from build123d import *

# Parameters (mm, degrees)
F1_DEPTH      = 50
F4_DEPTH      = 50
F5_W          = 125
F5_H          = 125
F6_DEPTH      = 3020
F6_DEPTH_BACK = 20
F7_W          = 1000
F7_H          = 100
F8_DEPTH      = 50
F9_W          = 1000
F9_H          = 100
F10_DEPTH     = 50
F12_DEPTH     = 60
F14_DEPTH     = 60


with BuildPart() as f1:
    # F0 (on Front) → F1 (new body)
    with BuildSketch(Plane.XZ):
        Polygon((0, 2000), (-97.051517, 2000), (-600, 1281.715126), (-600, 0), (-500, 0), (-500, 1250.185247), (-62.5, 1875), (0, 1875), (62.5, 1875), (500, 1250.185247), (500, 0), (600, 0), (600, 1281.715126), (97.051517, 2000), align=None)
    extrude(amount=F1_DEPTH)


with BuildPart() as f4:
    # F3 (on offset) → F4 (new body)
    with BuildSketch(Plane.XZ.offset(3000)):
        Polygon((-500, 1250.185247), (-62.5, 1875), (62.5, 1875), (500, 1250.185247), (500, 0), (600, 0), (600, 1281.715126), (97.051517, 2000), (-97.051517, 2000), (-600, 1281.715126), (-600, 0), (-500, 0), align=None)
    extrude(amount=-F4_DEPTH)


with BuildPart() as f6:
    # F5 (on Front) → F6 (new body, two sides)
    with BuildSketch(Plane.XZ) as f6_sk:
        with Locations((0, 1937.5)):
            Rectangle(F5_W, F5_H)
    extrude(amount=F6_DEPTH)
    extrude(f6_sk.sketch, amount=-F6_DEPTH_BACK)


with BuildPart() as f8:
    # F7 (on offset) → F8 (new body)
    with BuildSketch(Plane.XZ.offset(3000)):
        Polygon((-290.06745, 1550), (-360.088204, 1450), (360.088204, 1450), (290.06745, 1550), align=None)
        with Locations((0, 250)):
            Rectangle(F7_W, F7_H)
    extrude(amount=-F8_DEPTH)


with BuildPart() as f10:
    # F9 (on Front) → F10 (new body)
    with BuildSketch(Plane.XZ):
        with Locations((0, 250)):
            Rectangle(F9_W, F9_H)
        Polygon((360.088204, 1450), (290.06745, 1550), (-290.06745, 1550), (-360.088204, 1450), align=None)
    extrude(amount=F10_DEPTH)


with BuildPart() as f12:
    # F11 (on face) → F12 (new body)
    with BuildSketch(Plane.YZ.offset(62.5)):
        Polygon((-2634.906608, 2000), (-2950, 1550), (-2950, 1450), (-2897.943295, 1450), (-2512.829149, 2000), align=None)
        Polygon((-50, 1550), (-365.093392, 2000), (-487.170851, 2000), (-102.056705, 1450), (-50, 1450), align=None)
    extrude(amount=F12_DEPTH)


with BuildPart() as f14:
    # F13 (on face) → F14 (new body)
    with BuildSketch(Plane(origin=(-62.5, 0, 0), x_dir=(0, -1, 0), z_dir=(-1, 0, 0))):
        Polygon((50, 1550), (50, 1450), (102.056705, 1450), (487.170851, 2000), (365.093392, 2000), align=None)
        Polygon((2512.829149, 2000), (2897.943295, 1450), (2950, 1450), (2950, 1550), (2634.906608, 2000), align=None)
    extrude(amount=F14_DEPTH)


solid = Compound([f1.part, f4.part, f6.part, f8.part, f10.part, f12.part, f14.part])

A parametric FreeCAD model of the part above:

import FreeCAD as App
import Part
import Sketcher
from FreeCAD import Vector
Q = App.Units.Quantity

doc = App.newDocument("Part")
body = doc.addObject("PartDesign::Body", "Body")

sketch1 = body.newObject("Sketcher::SketchObject", "Sketch")
sketch1.AttachmentSupport = (doc.getObject("XZ_Plane"), [""])
sketch1.MapMode = "FlatFace"
sketch1.addGeometry([
    Part.LineSegment(Vector(-97, 2000, 0), Vector(-600, 1282, 0)),
    Part.LineSegment(Vector(-600, 1282, 0), Vector(-600, 0, 0)),
    Part.LineSegment(Vector(-600, 0, 0), Vector(-500, 0, 0)),
    Part.LineSegment(Vector(-500, 0, 0), Vector(-500, 1250, 0)),
    Part.LineSegment(Vector(-500, 1250, 0), Vector(-62, 1875, 0)),
    Part.LineSegment(Vector(-62, 1875, 0), Vector(62, 1875, 0)),
    Part.LineSegment(Vector(62, 1875, 0), Vector(500, 1250, 0)),
    Part.LineSegment(Vector(500, 1250, 0), Vector(500, 0, 0)),
    Part.LineSegment(Vector(500, 0, 0), Vector(600, 0, 0)),
    Part.LineSegment(Vector(600, 0, 0), Vector(600, 1282, 0)),
    Part.LineSegment(Vector(600, 1282, 0), Vector(97, 2000, 0)),
    Part.LineSegment(Vector(97, 2000, 0), Vector(-97, 2000, 0)),
], False)
sketch1.addConstraint([
    Sketcher.Constraint("Coincident", 0, 2, 1, 1),
    Sketcher.Constraint("Coincident", 1, 2, 2, 1),
    Sketcher.Constraint("Coincident", 2, 2, 3, 1),
    Sketcher.Constraint("Coincident", 3, 2, 4, 1),
    Sketcher.Constraint("Coincident", 4, 2, 5, 1),
    Sketcher.Constraint("Coincident", 5, 2, 6, 1),
    Sketcher.Constraint("Coincident", 6, 2, 7, 1),
    Sketcher.Constraint("Coincident", 7, 2, 8, 1),
    Sketcher.Constraint("Coincident", 8, 2, 9, 1),
    Sketcher.Constraint("Coincident", 9, 2, 10, 1),
    Sketcher.Constraint("Coincident", 10, 2, 11, 1),
    Sketcher.Constraint("Coincident", 11, 2, 0, 1),
    Sketcher.Constraint("Vertical", 1),
    Sketcher.Constraint("Horizontal", 2),
    Sketcher.Constraint("Vertical", 3),
    Sketcher.Constraint("Horizontal", 5),
    Sketcher.Constraint("Vertical", 7),
    Sketcher.Constraint("Horizontal", 8),
    Sketcher.Constraint("Vertical", 9),
    Sketcher.Constraint("Horizontal", 11),
    Sketcher.Constraint("Symmetric", 2, 2, 7, 2, -1, 1),
    Sketcher.Constraint("Symmetric", 1, 2, 8, 2, -2),
    Sketcher.Constraint("Parallel", 0, 4),
    Sketcher.Constraint("Parallel", 6, 10),
    Sketcher.Constraint("Horizontal", 3, 2, 6, 2),
    Sketcher.Constraint("Horizontal", 0, 2, 9, 2),
    Sketcher.Constraint("Equal", 4, 6),
    Sketcher.Constraint("DistanceX", 2, 1, 2, 2, Q("100 mm")),
    Sketcher.Constraint("DistanceX", 5, 1, 5, 2, Q("125 mm")),
    Sketcher.Constraint("Angle", 0, Q("-125 deg")),
    Sketcher.Constraint("DistanceX", 0, 2, -1, 1, Q("600 mm")),
    Sketcher.Constraint("DistanceY", -1, 1, 4, 2, Q("1875 mm")),
    Sketcher.Constraint("DistanceY", -1, 1, 10, 2, Q("2000 mm")),
    Sketcher.Constraint("Distance", 0, Q("876.863921 mm")),
])
pad1 = body.newObject("PartDesign::Pad", "Pad")
pad1.Profile = sketch1
pad1.Length = 50
body2 = doc.addObject("PartDesign::Body", "Body001")

sketch2 = body2.newObject("Sketcher::SketchObject", "Sketch001")
sketch2.AttachmentSupport = (doc.getObject("XZ_Plane001"), [""])
sketch2.MapMode = "FlatFace"
sketch2.AttachmentOffset = App.Placement(Vector(0, 0, 3000), App.Rotation())
sketch2.addGeometry([
    Part.LineSegment(Vector(-500, 1250, 0), Vector(-62, 1875, 0)),
    Part.LineSegment(Vector(-62, 1875, 0), Vector(62, 1875, 0)),
    Part.LineSegment(Vector(62, 1875, 0), Vector(500, 1250, 0)),
    Part.LineSegment(Vector(500, 1250, 0), Vector(500, 0, 0)),
    Part.LineSegment(Vector(500, 0, 0), Vector(600, 0, 0)),
    Part.LineSegment(Vector(600, 0, 0), Vector(600, 1282, 0)),
    Part.LineSegment(Vector(600, 1282, 0), Vector(97, 2000, 0)),
    Part.LineSegment(Vector(97, 2000, 0), Vector(-97, 2000, 0)),
    Part.LineSegment(Vector(-97, 2000, 0), Vector(-600, 1282, 0)),
    Part.LineSegment(Vector(-600, 1282, 0), Vector(-600, 0, 0)),
    Part.LineSegment(Vector(-600, 0, 0), Vector(-500, 0, 0)),
    Part.LineSegment(Vector(-500, 0, 0), Vector(-500, 1250, 0)),
], False)
sketch2.addConstraint([
    Sketcher.Constraint("Coincident", 0, 2, 1, 1),
    Sketcher.Constraint("Coincident", 1, 2, 2, 1),
    Sketcher.Constraint("Coincident", 2, 2, 3, 1),
    Sketcher.Constraint("Coincident", 3, 2, 4, 1),
    Sketcher.Constraint("Coincident", 4, 2, 5, 1),
    Sketcher.Constraint("Coincident", 5, 2, 6, 1),
    Sketcher.Constraint("Coincident", 6, 2, 7, 1),
    Sketcher.Constraint("Coincident", 7, 2, 8, 1),
    Sketcher.Constraint("Coincident", 8, 2, 9, 1),
    Sketcher.Constraint("Coincident", 9, 2, 10, 1),
    Sketcher.Constraint("Coincident", 10, 2, 11, 1),
    Sketcher.Constraint("Coincident", 11, 2, 0, 1),
    Sketcher.Constraint("Horizontal", 1),
    Sketcher.Constraint("Vertical", 3),
    Sketcher.Constraint("Horizontal", 4),
    Sketcher.Constraint("Vertical", 5),
    Sketcher.Constraint("Horizontal", 7),
    Sketcher.Constraint("Vertical", 9),
    Sketcher.Constraint("Horizontal", 10),
    Sketcher.Constraint("Vertical", 11),
    Sketcher.Constraint("Symmetric", 4, 2, 9, 2, -1, 1),
    Sketcher.Constraint("Symmetric", 3, 2, 10, 2, -2),
    Sketcher.Constraint("Parallel", 2, 6),
    Sketcher.Constraint("Parallel", 0, 8),
    Sketcher.Constraint("Horizontal", 5, 2, 8, 2),
    Sketcher.Constraint("Horizontal", 2, 2, 11, 2),
    Sketcher.Constraint("Equal", 0, 2),
    Sketcher.Constraint("DistanceX", 1, 1, 1, 2, Q("125 mm")),
    Sketcher.Constraint("DistanceX", 4, 1, 4, 2, Q("100 mm")),
    Sketcher.Constraint("Angle", 0, Q("55 deg")),
    Sketcher.Constraint("DistanceY", -1, 1, 0, 2, Q("1875 mm")),
    Sketcher.Constraint("DistanceX", -1, 1, 2, 2, Q("500 mm")),
    Sketcher.Constraint("DistanceY", -1, 1, 6, 2, Q("2000 mm")),
    Sketcher.Constraint("Distance", 6, Q("876.863921 mm")),
])
pad2 = body2.newObject("PartDesign::Pad", "Pad001")
pad2.Profile = sketch2
pad2.Length = 50
pad2.Reversed = True
body3 = doc.addObject("PartDesign::Body", "Body002")

sketch3 = body3.newObject("Sketcher::SketchObject", "Sketch002")
sketch3.AttachmentSupport = (doc.getObject("XZ_Plane002"), [""])
sketch3.MapMode = "FlatFace"
sketch3.addGeometry([
    Part.LineSegment(Vector(-62, 2000, 0), Vector(-62, 1875, 0)),
    Part.LineSegment(Vector(-62, 1875, 0), Vector(62, 1875, 0)),
    Part.LineSegment(Vector(62, 1875, 0), Vector(62, 2000, 0)),
    Part.LineSegment(Vector(62, 2000, 0), Vector(-62, 2000, 0)),
], False)
sketch3.addConstraint([
    Sketcher.Constraint("Coincident", 0, 2, 1, 1),
    Sketcher.Constraint("Coincident", 1, 2, 2, 1),
    Sketcher.Constraint("Coincident", 2, 2, 3, 1),
    Sketcher.Constraint("Coincident", 3, 2, 0, 1),
    Sketcher.Constraint("Vertical", 0),
    Sketcher.Constraint("Horizontal", 1),
    Sketcher.Constraint("Vertical", 2),
    Sketcher.Constraint("Horizontal", 3),
    Sketcher.Constraint("Equal", 3, 0),
    Sketcher.Constraint("DistanceX", 1, 1, 1, 2, Q("125 mm")),
    Sketcher.Constraint("DistanceY", -1, 1, 0, 2, Q("1875 mm")),
    Sketcher.Constraint("DistanceX", 0, 2, -1, 1, Q("62.5 mm")),
])
pad3 = body3.newObject("PartDesign::Pad", "Pad002")
pad3.Profile = sketch3
pad3.Type = "TwoLengths"
pad3.Length = 3020
pad3.Length2 = 20
body4 = doc.addObject("PartDesign::Body", "Body003")
body4.AllowCompound = True

sketch4 = body4.newObject("Sketcher::SketchObject", "Sketch003")
sketch4.AttachmentSupport = (doc.getObject("XZ_Plane003"), [""])
sketch4.MapMode = "FlatFace"
sketch4.AttachmentOffset = App.Placement(Vector(0, 0, 3000), App.Rotation())
sketch4.addGeometry([
    Part.LineSegment(Vector(-290, 1550, 0), Vector(-360, 1450, 0)),
    Part.LineSegment(Vector(-360, 1450, 0), Vector(360, 1450, 0)),
    Part.LineSegment(Vector(360, 1450, 0), Vector(290, 1550, 0)),
    Part.LineSegment(Vector(290, 1550, 0), Vector(-290, 1550, 0)),
    Part.LineSegment(Vector(-500, 300, 0), Vector(-500, 200, 0)),
    Part.LineSegment(Vector(-500, 200, 0), Vector(500, 200, 0)),
    Part.LineSegment(Vector(500, 200, 0), Vector(500, 300, 0)),
    Part.LineSegment(Vector(500, 300, 0), Vector(-500, 300, 0)),
], False)
sketch4.addConstraint([
    Sketcher.Constraint("Coincident", 0, 2, 1, 1),
    Sketcher.Constraint("Coincident", 1, 2, 2, 1),
    Sketcher.Constraint("Coincident", 2, 2, 3, 1),
    Sketcher.Constraint("Coincident", 3, 2, 0, 1),
    Sketcher.Constraint("Coincident", 4, 2, 5, 1),
    Sketcher.Constraint("Coincident", 5, 2, 6, 1),
    Sketcher.Constraint("Coincident", 6, 2, 7, 1),
    Sketcher.Constraint("Coincident", 7, 2, 4, 1),
    Sketcher.Constraint("Horizontal", 1),
    Sketcher.Constraint("Horizontal", 3),
    Sketcher.Constraint("Vertical", 4),
    Sketcher.Constraint("Horizontal", 5),
    Sketcher.Constraint("Vertical", 6),
    Sketcher.Constraint("Horizontal", 7),
    Sketcher.Constraint("Equal", 0, 2),
    Sketcher.Constraint("DistanceX", 5, 1, 5, 2, Q("1000 mm")),
    Sketcher.Constraint("DistanceY", 4, 2, 4, 1, Q("100 mm")),
    Sketcher.Constraint("Angle", 0, Q("-125 deg")),
    Sketcher.Constraint("DistanceY", -1, 1, 0, 2, Q("1450 mm")),
    Sketcher.Constraint("DistanceY", -1, 1, 2, 2, Q("1550 mm")),
    Sketcher.Constraint("DistanceX", 4, 2, -1, 1, Q("500 mm")),
    Sketcher.Constraint("DistanceY", -1, 1, 4, 2, Q("200 mm")),
    Sketcher.Constraint("DistanceX", 3, 2, 3, 1, Q("580.1349 mm")),
    Sketcher.Constraint("DistanceX", -1, 1, 2, 2, Q("290.06745 mm")),
])
pad4 = body4.newObject("PartDesign::Pad", "Pad003")
pad4.Profile = sketch4
pad4.Length = 50
pad4.Reversed = True
body5 = doc.addObject("PartDesign::Body", "Body004")
body5.AllowCompound = True

sketch5 = body5.newObject("Sketcher::SketchObject", "Sketch004")
sketch5.AttachmentSupport = (doc.getObject("XZ_Plane004"), [""])
sketch5.MapMode = "FlatFace"
sketch5.addGeometry([
    Part.LineSegment(Vector(-500, 300, 0), Vector(-500, 200, 0)),
    Part.LineSegment(Vector(-500, 200, 0), Vector(500, 200, 0)),
    Part.LineSegment(Vector(500, 200, 0), Vector(500, 300, 0)),
    Part.LineSegment(Vector(500, 300, 0), Vector(-500, 300, 0)),
    Part.LineSegment(Vector(360, 1450, 0), Vector(290, 1550, 0)),
    Part.LineSegment(Vector(290, 1550, 0), Vector(-290, 1550, 0)),
    Part.LineSegment(Vector(-290, 1550, 0), Vector(-360, 1450, 0)),
    Part.LineSegment(Vector(-360, 1450, 0), Vector(360, 1450, 0)),
], False)
sketch5.addConstraint([
    Sketcher.Constraint("Coincident", 0, 2, 1, 1),
    Sketcher.Constraint("Coincident", 1, 2, 2, 1),
    Sketcher.Constraint("Coincident", 2, 2, 3, 1),
    Sketcher.Constraint("Coincident", 3, 2, 0, 1),
    Sketcher.Constraint("Coincident", 4, 2, 5, 1),
    Sketcher.Constraint("Coincident", 5, 2, 6, 1),
    Sketcher.Constraint("Coincident", 6, 2, 7, 1),
    Sketcher.Constraint("Coincident", 7, 2, 4, 1),
    Sketcher.Constraint("Vertical", 0),
    Sketcher.Constraint("Horizontal", 1),
    Sketcher.Constraint("Vertical", 2),
    Sketcher.Constraint("Horizontal", 3),
    Sketcher.Constraint("Horizontal", 5),
    Sketcher.Constraint("Horizontal", 7),
    Sketcher.Constraint("Equal", 4, 6),
    Sketcher.Constraint("DistanceX", 1, 1, 1, 2, Q("1000 mm")),
    Sketcher.Constraint("DistanceY", 0, 2, 0, 1, Q("100 mm")),
    Sketcher.Constraint("Angle", 4, Q("125 deg")),
    Sketcher.Constraint("DistanceX", 0, 2, -1, 1, Q("500 mm")),
    Sketcher.Constraint("DistanceY", -1, 1, 0, 2, Q("200 mm")),
    Sketcher.Constraint("DistanceY", -1, 1, 4, 2, Q("1550 mm")),
    Sketcher.Constraint("DistanceY", -1, 1, 6, 2, Q("1450 mm")),
    Sketcher.Constraint("DistanceX", 5, 2, 5, 1, Q("580.1349 mm")),
    Sketcher.Constraint("DistanceX", -1, 1, 4, 2, Q("290.06745 mm")),
])
pad5 = body5.newObject("PartDesign::Pad", "Pad004")
pad5.Profile = sketch5
pad5.Length = 50
body6 = doc.addObject("PartDesign::Body", "Body005")
body6.AllowCompound = True

sketch6 = body6.newObject("Sketcher::SketchObject", "Sketch005")
sketch6.AttachmentSupport = (doc.getObject("YZ_Plane005"), [""])
sketch6.MapMode = "FlatFace"
sketch6.AttachmentOffset = App.Placement(Vector(0, 0, 62.5), App.Rotation())
sketch6.addGeometry([
    Part.LineSegment(Vector(-2635, 2000, 0), Vector(-2950, 1550, 0)),
    Part.LineSegment(Vector(-2950, 1550, 0), Vector(-2950, 1450, 0)),
    Part.LineSegment(Vector(-2950, 1450, 0), Vector(-2898, 1450, 0)),
    Part.LineSegment(Vector(-2898, 1450, 0), Vector(-2513, 2000, 0)),
    Part.LineSegment(Vector(-2513, 2000, 0), Vector(-2635, 2000, 0)),
    Part.LineSegment(Vector(-50, 1550, 0), Vector(-365, 2000, 0)),
    Part.LineSegment(Vector(-365, 2000, 0), Vector(-487, 2000, 0)),
    Part.LineSegment(Vector(-487, 2000, 0), Vector(-102, 1450, 0)),
    Part.LineSegment(Vector(-102, 1450, 0), Vector(-50, 1450, 0)),
    Part.LineSegment(Vector(-50, 1450, 0), Vector(-50, 1550, 0)),
], False)
sketch6.addConstraint([
    Sketcher.Constraint("Coincident", 0, 2, 1, 1),
    Sketcher.Constraint("Coincident", 1, 2, 2, 1),
    Sketcher.Constraint("Coincident", 2, 2, 3, 1),
    Sketcher.Constraint("Coincident", 3, 2, 4, 1),
    Sketcher.Constraint("Coincident", 4, 2, 0, 1),
    Sketcher.Constraint("Coincident", 5, 2, 6, 1),
    Sketcher.Constraint("Coincident", 6, 2, 7, 1),
    Sketcher.Constraint("Coincident", 7, 2, 8, 1),
    Sketcher.Constraint("Coincident", 8, 2, 9, 1),
    Sketcher.Constraint("Coincident", 9, 2, 5, 1),
    Sketcher.Constraint("Vertical", 1),
    Sketcher.Constraint("Horizontal", 2),
    Sketcher.Constraint("Horizontal", 4),
    Sketcher.Constraint("Horizontal", 6),
    Sketcher.Constraint("Horizontal", 8),
    Sketcher.Constraint("Vertical", 9),
    Sketcher.Constraint("Parallel", 0, 3),
    Sketcher.Constraint("Parallel", 5, 7),
    Sketcher.Constraint("Horizontal", 4, 2, 5, 2),
    Sketcher.Constraint("Horizontal", 2, 2, 7, 2),
    Sketcher.Constraint("Horizontal", 0, 2, 9, 2),
    Sketcher.Constraint("Equal", 4, 6),
    Sketcher.Constraint("Equal", 2, 8),
    Sketcher.Constraint("DistanceY", 1, 2, 1, 1, Q("100 mm")),
    Sketcher.Constraint("Angle", 0, Q("-125 deg")),
    Sketcher.Constraint("DistanceX", 0, 2, -1, 1, Q("2950 mm")),
    Sketcher.Constraint("DistanceY", -1, 1, 0, 2, Q("1550 mm")),
    Sketcher.Constraint("DistanceY", -1, 1, 3, 2, Q("2000 mm")),
    Sketcher.Constraint("DistanceX", 8, 2, -1, 1, Q("50 mm")),
    Sketcher.Constraint("DistanceX", 4, 2, 4, 1, Q("122.077459 mm")),
])
pad6 = body6.newObject("PartDesign::Pad", "Pad005")
pad6.Profile = sketch6
pad6.Length = 60
body7 = doc.addObject("PartDesign::Body", "Body006")
body7.AllowCompound = True

sketch7 = body7.newObject("Sketcher::SketchObject", "Sketch006")
sketch7.AttachmentSupport = (doc.getObject("YZ_Plane006"), [""])
sketch7.MapMode = "FlatFace"
sketch7.AttachmentOffset = App.Placement(Vector(0, 0, -62.5), App.Rotation())
sketch7.addGeometry([
    Part.LineSegment(Vector(-50, 1550, 0), Vector(-50, 1450, 0)),
    Part.LineSegment(Vector(-50, 1450, 0), Vector(-102, 1450, 0)),
    Part.LineSegment(Vector(-102, 1450, 0), Vector(-487, 2000, 0)),
    Part.LineSegment(Vector(-487, 2000, 0), Vector(-365, 2000, 0)),
    Part.LineSegment(Vector(-365, 2000, 0), Vector(-50, 1550, 0)),
    Part.LineSegment(Vector(-2513, 2000, 0), Vector(-2898, 1450, 0)),
    Part.LineSegment(Vector(-2898, 1450, 0), Vector(-2950, 1450, 0)),
    Part.LineSegment(Vector(-2950, 1450, 0), Vector(-2950, 1550, 0)),
    Part.LineSegment(Vector(-2950, 1550, 0), Vector(-2635, 2000, 0)),
    Part.LineSegment(Vector(-2635, 2000, 0), Vector(-2513, 2000, 0)),
], False)
sketch7.addConstraint([
    Sketcher.Constraint("Coincident", 0, 2, 1, 1),
    Sketcher.Constraint("Coincident", 1, 2, 2, 1),
    Sketcher.Constraint("Coincident", 2, 2, 3, 1),
    Sketcher.Constraint("Coincident", 3, 2, 4, 1),
    Sketcher.Constraint("Coincident", 4, 2, 0, 1),
    Sketcher.Constraint("Coincident", 5, 2, 6, 1),
    Sketcher.Constraint("Coincident", 6, 2, 7, 1),
    Sketcher.Constraint("Coincident", 7, 2, 8, 1),
    Sketcher.Constraint("Coincident", 8, 2, 9, 1),
    Sketcher.Constraint("Coincident", 9, 2, 5, 1),
    Sketcher.Constraint("Vertical", 0),
    Sketcher.Constraint("Horizontal", 1),
    Sketcher.Constraint("Horizontal", 3),
    Sketcher.Constraint("Horizontal", 6),
    Sketcher.Constraint("Vertical", 7),
    Sketcher.Constraint("Horizontal", 9),
    Sketcher.Constraint("Parallel", 2, 4),
    Sketcher.Constraint("Parallel", 5, 8),
    Sketcher.Constraint("Horizontal", 1, 2, 5, 2),
    Sketcher.Constraint("Horizontal", 4, 2, 7, 2),
    Sketcher.Constraint("Horizontal", 3, 2, 8, 2),
    Sketcher.Constraint("Equal", 1, 6),
    Sketcher.Constraint("Equal", 3, 9),
    Sketcher.Constraint("DistanceY", 0, 2, 0, 1, Q("100 mm")),
    Sketcher.Constraint("Angle", 2, Q("125 deg")),
    Sketcher.Constraint("DistanceX", 0, 2, -1, 1, Q("50 mm")),
    Sketcher.Constraint("DistanceY", -1, 1, 0, 2, Q("1450 mm")),
    Sketcher.Constraint("DistanceY", -1, 1, 2, 2, Q("2000 mm")),
    Sketcher.Constraint("DistanceX", 6, 2, -1, 1, Q("2950 mm")),
    Sketcher.Constraint("DistanceX", 3, 1, 3, 2, Q("122.077459 mm")),
])
pad7 = body7.newObject("PartDesign::Pad", "Pad006")
pad7.Profile = sketch7
pad7.Length = 60
pad7.Reversed = True

doc.recompute()
